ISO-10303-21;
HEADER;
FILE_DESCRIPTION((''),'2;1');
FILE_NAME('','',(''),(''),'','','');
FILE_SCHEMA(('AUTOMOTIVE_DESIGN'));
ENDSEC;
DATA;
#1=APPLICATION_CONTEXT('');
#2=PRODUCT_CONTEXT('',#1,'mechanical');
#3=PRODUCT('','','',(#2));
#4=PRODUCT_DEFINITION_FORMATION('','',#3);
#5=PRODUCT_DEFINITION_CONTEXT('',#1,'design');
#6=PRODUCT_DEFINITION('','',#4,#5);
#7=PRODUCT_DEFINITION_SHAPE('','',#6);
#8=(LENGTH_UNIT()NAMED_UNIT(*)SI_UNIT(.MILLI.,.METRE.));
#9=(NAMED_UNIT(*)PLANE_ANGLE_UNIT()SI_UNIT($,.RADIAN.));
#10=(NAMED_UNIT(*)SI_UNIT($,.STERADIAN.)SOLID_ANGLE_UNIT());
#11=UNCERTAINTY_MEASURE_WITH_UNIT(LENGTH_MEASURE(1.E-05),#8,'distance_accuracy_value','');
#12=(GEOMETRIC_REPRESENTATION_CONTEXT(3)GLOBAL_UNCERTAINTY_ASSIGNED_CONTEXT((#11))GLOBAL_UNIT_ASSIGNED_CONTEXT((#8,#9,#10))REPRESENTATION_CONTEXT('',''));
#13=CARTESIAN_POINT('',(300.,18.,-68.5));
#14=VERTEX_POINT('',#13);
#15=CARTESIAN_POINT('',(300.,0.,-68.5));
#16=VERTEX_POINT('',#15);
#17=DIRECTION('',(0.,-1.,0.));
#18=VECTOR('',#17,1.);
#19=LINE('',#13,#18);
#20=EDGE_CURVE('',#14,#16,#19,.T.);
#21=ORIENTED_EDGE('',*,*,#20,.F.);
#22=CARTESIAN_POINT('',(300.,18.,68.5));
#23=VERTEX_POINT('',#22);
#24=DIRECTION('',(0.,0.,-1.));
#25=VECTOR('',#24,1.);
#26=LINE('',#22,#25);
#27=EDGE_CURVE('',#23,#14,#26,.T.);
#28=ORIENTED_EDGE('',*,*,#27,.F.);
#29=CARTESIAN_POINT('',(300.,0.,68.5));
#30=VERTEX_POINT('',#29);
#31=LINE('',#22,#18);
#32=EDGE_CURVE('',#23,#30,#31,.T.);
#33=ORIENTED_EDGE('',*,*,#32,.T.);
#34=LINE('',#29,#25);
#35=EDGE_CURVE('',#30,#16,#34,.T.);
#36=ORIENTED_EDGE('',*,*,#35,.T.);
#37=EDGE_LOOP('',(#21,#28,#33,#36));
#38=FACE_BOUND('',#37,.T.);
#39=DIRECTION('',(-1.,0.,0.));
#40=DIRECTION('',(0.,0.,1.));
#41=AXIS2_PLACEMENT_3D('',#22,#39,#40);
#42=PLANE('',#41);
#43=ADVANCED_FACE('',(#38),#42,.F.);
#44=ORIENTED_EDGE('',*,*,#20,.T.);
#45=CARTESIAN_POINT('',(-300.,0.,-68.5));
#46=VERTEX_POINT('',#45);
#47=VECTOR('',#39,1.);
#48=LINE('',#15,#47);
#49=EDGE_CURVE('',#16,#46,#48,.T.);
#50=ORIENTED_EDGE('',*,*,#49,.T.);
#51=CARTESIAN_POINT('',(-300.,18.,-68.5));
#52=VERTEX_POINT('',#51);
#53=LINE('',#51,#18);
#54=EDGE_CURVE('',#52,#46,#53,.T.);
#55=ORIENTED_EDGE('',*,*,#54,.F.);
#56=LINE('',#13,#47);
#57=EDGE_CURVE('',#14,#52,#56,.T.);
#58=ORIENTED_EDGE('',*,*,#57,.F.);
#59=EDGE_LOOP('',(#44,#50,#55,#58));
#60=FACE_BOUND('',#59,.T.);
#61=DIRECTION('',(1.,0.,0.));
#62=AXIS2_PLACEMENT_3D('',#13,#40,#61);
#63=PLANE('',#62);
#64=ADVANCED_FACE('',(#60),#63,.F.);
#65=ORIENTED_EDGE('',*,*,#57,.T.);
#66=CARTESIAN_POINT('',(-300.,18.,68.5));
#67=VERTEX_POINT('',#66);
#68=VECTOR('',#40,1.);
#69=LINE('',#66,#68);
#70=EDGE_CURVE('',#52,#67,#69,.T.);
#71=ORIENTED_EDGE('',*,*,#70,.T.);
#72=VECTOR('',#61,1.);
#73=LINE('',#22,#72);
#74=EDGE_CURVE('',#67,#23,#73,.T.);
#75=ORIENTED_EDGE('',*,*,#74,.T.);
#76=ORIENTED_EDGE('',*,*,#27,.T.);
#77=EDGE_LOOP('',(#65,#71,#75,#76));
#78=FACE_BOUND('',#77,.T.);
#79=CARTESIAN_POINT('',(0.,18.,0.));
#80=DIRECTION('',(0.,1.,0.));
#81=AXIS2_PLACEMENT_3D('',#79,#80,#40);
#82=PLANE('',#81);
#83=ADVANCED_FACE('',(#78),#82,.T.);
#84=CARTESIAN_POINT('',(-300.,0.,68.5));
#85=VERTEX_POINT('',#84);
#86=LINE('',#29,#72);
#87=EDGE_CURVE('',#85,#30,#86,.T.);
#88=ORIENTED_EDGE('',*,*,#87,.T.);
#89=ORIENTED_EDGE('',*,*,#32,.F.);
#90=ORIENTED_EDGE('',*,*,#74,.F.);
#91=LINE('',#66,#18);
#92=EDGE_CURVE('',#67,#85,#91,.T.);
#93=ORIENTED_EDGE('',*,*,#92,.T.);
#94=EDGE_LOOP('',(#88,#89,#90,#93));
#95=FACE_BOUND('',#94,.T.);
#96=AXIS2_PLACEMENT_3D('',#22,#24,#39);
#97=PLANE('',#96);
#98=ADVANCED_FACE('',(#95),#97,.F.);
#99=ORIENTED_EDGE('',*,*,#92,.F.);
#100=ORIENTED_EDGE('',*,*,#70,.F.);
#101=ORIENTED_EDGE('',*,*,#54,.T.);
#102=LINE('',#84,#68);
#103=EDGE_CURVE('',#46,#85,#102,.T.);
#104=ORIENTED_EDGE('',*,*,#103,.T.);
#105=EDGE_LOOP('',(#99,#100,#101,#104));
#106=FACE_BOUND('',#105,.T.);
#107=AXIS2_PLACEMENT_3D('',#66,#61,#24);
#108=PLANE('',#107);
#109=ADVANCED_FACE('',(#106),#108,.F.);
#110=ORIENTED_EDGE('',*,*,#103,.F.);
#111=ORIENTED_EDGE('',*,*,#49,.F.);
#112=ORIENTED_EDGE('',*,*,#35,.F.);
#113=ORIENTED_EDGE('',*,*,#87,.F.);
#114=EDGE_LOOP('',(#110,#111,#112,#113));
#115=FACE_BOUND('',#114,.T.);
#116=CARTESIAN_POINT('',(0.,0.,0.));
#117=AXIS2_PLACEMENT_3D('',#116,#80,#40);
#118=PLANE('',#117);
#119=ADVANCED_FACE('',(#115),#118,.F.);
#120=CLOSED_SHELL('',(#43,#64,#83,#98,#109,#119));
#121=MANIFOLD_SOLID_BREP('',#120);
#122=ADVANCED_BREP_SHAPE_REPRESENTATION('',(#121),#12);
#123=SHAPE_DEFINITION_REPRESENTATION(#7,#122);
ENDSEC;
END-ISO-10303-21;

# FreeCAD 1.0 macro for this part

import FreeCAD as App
import Part
import Sketcher

V = App.Vector


def add_polygon(sketch, points):
    """Adds a closed chain of lines whose ends are joined by coincident constraints."""
    first, n = sketch.GeometryCount, len(points)
    for a, b in zip(points, points[1:] + points[:1]):
        sketch.addGeometry(Part.LineSegment(App.Vector(*a, 0), App.Vector(*b, 0)), False)
    for i in range(n):
        sketch.addConstraint(Sketcher.Constraint("Coincident", first + i, 2, first + (i + 1) % n, 1))

doc = App.newDocument("Part")
body = doc.addObject("PartDesign::Body", "Body")

# Sketch on XZ plane
sketch1 = body.newObject("Sketcher::SketchObject", "Sketch")
sketch1.AttachmentSupport = (doc.getObject("XZ_Plane"), [""])
sketch1.MapMode = "FlatFace"
add_polygon(sketch1, [(-300, -68.5), (-300, 68.5), (300, 68.5), (300, -68.5)])  # lines 0-3
sketch1.addConstraint([
    Sketcher.Constraint("Vertical", 0),
    Sketcher.Constraint("Horizontal", 1),
    Sketcher.Constraint("Vertical", 2),
    Sketcher.Constraint("Horizontal", 3),
    Sketcher.Constraint("Symmetric", 0, 2, 2, 2, -1, 1),
    Sketcher.Constraint("DistanceX", 1, 1, 1, 2, 600.0),
    Sketcher.Constraint("DistanceY", 0, 1, 0, 2, 137.0),
])
pad1 = body.newObject("PartDesign::Pad", "Pad")
pad1.Profile = sketch1
pad1.Length = 18
pad1.Reversed = True

doc.recompute()
